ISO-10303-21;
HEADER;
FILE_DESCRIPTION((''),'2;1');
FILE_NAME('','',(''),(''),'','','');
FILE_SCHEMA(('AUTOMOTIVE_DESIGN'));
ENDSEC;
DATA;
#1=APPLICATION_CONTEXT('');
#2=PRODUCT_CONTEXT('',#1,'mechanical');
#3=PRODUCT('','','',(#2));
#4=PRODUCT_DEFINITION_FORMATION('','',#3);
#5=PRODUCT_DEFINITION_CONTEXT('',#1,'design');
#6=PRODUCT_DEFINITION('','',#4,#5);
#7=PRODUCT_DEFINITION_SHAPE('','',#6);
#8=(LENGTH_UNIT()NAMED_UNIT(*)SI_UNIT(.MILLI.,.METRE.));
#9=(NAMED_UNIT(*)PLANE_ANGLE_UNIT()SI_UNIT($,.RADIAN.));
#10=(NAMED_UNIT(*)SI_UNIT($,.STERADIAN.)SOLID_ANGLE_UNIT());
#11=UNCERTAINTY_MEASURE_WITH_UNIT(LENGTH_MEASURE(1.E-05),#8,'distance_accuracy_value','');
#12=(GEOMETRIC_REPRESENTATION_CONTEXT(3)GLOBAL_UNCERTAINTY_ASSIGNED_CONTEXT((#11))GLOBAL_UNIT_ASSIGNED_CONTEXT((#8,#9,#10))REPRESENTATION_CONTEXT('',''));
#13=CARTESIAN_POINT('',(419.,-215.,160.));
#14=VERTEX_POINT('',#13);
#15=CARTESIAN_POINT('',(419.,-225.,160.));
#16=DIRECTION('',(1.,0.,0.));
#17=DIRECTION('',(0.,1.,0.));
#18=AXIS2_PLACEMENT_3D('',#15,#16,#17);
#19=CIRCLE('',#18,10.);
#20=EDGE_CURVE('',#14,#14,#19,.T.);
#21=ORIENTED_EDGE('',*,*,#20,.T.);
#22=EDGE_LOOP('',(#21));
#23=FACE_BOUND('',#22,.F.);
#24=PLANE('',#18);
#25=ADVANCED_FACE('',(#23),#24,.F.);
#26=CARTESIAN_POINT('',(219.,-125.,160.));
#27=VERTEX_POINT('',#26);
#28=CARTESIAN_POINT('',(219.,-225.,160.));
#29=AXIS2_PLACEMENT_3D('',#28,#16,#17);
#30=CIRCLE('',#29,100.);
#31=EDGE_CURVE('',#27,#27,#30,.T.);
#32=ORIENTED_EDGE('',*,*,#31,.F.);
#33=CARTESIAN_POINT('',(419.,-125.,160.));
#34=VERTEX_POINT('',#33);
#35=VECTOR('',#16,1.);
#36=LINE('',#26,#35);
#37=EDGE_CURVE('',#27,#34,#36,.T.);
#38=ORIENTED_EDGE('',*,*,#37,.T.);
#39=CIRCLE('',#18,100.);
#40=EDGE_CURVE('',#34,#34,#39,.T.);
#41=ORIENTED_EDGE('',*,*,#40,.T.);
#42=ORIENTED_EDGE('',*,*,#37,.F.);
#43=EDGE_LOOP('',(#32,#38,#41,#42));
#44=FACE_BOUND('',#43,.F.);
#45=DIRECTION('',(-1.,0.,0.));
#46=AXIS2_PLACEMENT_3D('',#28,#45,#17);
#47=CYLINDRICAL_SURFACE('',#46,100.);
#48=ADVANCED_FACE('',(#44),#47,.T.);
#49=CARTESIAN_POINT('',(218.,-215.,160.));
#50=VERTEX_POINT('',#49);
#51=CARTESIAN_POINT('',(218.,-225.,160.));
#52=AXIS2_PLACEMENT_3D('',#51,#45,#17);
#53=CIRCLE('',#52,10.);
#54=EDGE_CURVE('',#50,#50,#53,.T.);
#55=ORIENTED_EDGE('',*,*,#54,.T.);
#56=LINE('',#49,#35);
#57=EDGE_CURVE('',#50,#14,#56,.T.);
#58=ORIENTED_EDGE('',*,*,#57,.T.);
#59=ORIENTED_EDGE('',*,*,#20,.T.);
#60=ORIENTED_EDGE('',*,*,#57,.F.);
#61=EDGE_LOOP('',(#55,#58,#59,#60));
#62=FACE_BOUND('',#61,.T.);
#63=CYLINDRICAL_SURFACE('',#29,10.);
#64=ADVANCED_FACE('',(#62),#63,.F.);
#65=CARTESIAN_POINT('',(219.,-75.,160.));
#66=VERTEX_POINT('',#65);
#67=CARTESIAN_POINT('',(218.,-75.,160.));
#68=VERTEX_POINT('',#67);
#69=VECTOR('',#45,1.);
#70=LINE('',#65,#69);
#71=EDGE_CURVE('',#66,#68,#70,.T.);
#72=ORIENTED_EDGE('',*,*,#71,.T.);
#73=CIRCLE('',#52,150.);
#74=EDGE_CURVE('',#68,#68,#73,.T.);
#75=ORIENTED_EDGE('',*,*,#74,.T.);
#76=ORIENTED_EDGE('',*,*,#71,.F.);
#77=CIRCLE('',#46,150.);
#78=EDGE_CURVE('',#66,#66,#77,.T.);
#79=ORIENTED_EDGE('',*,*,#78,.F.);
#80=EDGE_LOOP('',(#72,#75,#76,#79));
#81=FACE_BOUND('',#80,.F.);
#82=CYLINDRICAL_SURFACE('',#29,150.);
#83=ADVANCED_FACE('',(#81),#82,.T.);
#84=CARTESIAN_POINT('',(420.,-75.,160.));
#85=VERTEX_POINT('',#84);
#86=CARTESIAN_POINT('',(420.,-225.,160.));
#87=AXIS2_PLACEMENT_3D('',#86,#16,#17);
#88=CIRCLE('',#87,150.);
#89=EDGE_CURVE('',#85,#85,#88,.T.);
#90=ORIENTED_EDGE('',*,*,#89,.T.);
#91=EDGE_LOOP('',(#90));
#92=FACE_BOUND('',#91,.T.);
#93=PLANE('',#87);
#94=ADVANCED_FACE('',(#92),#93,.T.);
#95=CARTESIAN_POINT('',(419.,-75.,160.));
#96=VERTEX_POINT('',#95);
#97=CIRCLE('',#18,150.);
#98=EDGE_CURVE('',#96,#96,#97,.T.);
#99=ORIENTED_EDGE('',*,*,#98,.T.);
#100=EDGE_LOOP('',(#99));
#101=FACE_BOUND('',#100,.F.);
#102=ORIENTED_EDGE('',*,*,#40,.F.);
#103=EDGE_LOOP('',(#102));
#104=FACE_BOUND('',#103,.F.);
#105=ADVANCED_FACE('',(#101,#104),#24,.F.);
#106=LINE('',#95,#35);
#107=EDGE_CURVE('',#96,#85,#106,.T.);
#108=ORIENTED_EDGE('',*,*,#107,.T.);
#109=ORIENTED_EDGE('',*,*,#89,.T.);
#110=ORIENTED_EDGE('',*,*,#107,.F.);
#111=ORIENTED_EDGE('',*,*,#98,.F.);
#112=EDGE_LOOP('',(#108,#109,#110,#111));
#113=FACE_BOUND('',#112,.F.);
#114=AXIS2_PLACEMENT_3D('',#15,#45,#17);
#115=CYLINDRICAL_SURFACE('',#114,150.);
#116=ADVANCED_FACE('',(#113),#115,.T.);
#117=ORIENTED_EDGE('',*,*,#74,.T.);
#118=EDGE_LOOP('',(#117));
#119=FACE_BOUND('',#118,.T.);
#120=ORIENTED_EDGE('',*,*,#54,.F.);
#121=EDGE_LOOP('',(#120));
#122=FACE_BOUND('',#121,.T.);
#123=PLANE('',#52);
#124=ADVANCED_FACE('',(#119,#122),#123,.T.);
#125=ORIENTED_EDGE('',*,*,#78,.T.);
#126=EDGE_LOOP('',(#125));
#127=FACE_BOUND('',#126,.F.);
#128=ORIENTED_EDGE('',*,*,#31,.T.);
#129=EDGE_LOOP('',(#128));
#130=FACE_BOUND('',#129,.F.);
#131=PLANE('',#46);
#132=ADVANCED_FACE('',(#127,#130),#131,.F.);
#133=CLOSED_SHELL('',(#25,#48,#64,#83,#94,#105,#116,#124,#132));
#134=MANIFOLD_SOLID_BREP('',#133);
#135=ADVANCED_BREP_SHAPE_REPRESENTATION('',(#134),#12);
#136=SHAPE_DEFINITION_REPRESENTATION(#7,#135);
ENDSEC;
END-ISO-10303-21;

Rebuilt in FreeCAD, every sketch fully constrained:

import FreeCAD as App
import Part
import Sketcher

V = App.Vector

doc = App.newDocument("Part")
body = doc.addObject("PartDesign::Body", "Body")

# Sketch on YZ plane
sketch1 = body.newObject("Sketcher::SketchObject", "Sketch")
sketch1.AttachmentSupport = (doc.getObject("YZ_Plane"), [""])
sketch1.MapMode = "FlatFace"
sketch1.addGeometry([
    Part.Circle(V(0, 0, 0), V(0, 0, 1), 100),
    Part.Circle(V(0, 0, 0), V(0, 0, 1), 10),
], False)
sketch1.addConstraint([
    Sketcher.Constraint("Coincident", 0, 3, -1, 1),
    Sketcher.Constraint("Coincident", 1, 3, -1, 1),
    Sketcher.Constraint("Diameter", 0, 200.0),
    Sketcher.Constraint("Diameter", 1, 20.0),
])
pad1 = body.newObject("PartDesign::Pad", "Pad")
pad1.Profile = sketch1
pad1.Length = 200

# Sketch on YZ plane
sketch2 = body.newObject("Sketcher::SketchObject", "Sketch001")
sketch2.AttachmentSupport = (doc.getObject("YZ_Plane"), [""])
sketch2.MapMode = "FlatFace"
sketch2.addGeometry([
    Part.Circle(V(0, 0, 0), V(0, 0, 1), 150),
    Part.Circle(V(0, 0, 0), V(0, 0, 1), 10),
], False)
sketch2.addConstraint([
    Sketcher.Constraint("Coincident", 0, 3, -1, 1),
    Sketcher.Constraint("Coincident", 1, 3, -1, 1),
    Sketcher.Constraint("Diameter", 0, 300.0),
    Sketcher.Constraint("Diameter", 1, 20.0),
])
pad2 = body.newObject("PartDesign::Pad", "Pad001")
pad2.Profile = sketch2
pad2.Length = 1
pad2.Reversed = True

# Sketch on YZ plane
sketch3 = body.newObject("Sketcher::SketchObject", "Sketch002")
sketch3.AttachmentSupport = (doc.getObject("YZ_Plane"), [""])
sketch3.MapMode = "FlatFace"
sketch3.AttachmentOffset = App.Placement(V(0, 0, 200), App.Rotation())
sketch3.addGeometry(Part.Circle(V(0, 0, 0), V(0, 0, 1), 150), False)
sketch3.addConstraint([
    Sketcher.Constraint("Coincident", 0, 3, -1, 1),
    Sketcher.Constraint("Diameter", 0, 300.0),
])
pad3 = body.newObject("PartDesign::Pad", "Pad002")
pad3.Profile = sketch3
pad3.Length = 1
body2 = doc.addObject("PartDesign::Body", "Body001")
doc.recompute()

body.Placement = App.Placement(V(219, -225, 160), App.Rotation(V(0, 0, 1), 0))
boolean = body2.newObject("PartDesign::Boolean", "Boolean")
boolean.Type = "Fuse"
boolean.addObjects([body])

doc.recompute()
